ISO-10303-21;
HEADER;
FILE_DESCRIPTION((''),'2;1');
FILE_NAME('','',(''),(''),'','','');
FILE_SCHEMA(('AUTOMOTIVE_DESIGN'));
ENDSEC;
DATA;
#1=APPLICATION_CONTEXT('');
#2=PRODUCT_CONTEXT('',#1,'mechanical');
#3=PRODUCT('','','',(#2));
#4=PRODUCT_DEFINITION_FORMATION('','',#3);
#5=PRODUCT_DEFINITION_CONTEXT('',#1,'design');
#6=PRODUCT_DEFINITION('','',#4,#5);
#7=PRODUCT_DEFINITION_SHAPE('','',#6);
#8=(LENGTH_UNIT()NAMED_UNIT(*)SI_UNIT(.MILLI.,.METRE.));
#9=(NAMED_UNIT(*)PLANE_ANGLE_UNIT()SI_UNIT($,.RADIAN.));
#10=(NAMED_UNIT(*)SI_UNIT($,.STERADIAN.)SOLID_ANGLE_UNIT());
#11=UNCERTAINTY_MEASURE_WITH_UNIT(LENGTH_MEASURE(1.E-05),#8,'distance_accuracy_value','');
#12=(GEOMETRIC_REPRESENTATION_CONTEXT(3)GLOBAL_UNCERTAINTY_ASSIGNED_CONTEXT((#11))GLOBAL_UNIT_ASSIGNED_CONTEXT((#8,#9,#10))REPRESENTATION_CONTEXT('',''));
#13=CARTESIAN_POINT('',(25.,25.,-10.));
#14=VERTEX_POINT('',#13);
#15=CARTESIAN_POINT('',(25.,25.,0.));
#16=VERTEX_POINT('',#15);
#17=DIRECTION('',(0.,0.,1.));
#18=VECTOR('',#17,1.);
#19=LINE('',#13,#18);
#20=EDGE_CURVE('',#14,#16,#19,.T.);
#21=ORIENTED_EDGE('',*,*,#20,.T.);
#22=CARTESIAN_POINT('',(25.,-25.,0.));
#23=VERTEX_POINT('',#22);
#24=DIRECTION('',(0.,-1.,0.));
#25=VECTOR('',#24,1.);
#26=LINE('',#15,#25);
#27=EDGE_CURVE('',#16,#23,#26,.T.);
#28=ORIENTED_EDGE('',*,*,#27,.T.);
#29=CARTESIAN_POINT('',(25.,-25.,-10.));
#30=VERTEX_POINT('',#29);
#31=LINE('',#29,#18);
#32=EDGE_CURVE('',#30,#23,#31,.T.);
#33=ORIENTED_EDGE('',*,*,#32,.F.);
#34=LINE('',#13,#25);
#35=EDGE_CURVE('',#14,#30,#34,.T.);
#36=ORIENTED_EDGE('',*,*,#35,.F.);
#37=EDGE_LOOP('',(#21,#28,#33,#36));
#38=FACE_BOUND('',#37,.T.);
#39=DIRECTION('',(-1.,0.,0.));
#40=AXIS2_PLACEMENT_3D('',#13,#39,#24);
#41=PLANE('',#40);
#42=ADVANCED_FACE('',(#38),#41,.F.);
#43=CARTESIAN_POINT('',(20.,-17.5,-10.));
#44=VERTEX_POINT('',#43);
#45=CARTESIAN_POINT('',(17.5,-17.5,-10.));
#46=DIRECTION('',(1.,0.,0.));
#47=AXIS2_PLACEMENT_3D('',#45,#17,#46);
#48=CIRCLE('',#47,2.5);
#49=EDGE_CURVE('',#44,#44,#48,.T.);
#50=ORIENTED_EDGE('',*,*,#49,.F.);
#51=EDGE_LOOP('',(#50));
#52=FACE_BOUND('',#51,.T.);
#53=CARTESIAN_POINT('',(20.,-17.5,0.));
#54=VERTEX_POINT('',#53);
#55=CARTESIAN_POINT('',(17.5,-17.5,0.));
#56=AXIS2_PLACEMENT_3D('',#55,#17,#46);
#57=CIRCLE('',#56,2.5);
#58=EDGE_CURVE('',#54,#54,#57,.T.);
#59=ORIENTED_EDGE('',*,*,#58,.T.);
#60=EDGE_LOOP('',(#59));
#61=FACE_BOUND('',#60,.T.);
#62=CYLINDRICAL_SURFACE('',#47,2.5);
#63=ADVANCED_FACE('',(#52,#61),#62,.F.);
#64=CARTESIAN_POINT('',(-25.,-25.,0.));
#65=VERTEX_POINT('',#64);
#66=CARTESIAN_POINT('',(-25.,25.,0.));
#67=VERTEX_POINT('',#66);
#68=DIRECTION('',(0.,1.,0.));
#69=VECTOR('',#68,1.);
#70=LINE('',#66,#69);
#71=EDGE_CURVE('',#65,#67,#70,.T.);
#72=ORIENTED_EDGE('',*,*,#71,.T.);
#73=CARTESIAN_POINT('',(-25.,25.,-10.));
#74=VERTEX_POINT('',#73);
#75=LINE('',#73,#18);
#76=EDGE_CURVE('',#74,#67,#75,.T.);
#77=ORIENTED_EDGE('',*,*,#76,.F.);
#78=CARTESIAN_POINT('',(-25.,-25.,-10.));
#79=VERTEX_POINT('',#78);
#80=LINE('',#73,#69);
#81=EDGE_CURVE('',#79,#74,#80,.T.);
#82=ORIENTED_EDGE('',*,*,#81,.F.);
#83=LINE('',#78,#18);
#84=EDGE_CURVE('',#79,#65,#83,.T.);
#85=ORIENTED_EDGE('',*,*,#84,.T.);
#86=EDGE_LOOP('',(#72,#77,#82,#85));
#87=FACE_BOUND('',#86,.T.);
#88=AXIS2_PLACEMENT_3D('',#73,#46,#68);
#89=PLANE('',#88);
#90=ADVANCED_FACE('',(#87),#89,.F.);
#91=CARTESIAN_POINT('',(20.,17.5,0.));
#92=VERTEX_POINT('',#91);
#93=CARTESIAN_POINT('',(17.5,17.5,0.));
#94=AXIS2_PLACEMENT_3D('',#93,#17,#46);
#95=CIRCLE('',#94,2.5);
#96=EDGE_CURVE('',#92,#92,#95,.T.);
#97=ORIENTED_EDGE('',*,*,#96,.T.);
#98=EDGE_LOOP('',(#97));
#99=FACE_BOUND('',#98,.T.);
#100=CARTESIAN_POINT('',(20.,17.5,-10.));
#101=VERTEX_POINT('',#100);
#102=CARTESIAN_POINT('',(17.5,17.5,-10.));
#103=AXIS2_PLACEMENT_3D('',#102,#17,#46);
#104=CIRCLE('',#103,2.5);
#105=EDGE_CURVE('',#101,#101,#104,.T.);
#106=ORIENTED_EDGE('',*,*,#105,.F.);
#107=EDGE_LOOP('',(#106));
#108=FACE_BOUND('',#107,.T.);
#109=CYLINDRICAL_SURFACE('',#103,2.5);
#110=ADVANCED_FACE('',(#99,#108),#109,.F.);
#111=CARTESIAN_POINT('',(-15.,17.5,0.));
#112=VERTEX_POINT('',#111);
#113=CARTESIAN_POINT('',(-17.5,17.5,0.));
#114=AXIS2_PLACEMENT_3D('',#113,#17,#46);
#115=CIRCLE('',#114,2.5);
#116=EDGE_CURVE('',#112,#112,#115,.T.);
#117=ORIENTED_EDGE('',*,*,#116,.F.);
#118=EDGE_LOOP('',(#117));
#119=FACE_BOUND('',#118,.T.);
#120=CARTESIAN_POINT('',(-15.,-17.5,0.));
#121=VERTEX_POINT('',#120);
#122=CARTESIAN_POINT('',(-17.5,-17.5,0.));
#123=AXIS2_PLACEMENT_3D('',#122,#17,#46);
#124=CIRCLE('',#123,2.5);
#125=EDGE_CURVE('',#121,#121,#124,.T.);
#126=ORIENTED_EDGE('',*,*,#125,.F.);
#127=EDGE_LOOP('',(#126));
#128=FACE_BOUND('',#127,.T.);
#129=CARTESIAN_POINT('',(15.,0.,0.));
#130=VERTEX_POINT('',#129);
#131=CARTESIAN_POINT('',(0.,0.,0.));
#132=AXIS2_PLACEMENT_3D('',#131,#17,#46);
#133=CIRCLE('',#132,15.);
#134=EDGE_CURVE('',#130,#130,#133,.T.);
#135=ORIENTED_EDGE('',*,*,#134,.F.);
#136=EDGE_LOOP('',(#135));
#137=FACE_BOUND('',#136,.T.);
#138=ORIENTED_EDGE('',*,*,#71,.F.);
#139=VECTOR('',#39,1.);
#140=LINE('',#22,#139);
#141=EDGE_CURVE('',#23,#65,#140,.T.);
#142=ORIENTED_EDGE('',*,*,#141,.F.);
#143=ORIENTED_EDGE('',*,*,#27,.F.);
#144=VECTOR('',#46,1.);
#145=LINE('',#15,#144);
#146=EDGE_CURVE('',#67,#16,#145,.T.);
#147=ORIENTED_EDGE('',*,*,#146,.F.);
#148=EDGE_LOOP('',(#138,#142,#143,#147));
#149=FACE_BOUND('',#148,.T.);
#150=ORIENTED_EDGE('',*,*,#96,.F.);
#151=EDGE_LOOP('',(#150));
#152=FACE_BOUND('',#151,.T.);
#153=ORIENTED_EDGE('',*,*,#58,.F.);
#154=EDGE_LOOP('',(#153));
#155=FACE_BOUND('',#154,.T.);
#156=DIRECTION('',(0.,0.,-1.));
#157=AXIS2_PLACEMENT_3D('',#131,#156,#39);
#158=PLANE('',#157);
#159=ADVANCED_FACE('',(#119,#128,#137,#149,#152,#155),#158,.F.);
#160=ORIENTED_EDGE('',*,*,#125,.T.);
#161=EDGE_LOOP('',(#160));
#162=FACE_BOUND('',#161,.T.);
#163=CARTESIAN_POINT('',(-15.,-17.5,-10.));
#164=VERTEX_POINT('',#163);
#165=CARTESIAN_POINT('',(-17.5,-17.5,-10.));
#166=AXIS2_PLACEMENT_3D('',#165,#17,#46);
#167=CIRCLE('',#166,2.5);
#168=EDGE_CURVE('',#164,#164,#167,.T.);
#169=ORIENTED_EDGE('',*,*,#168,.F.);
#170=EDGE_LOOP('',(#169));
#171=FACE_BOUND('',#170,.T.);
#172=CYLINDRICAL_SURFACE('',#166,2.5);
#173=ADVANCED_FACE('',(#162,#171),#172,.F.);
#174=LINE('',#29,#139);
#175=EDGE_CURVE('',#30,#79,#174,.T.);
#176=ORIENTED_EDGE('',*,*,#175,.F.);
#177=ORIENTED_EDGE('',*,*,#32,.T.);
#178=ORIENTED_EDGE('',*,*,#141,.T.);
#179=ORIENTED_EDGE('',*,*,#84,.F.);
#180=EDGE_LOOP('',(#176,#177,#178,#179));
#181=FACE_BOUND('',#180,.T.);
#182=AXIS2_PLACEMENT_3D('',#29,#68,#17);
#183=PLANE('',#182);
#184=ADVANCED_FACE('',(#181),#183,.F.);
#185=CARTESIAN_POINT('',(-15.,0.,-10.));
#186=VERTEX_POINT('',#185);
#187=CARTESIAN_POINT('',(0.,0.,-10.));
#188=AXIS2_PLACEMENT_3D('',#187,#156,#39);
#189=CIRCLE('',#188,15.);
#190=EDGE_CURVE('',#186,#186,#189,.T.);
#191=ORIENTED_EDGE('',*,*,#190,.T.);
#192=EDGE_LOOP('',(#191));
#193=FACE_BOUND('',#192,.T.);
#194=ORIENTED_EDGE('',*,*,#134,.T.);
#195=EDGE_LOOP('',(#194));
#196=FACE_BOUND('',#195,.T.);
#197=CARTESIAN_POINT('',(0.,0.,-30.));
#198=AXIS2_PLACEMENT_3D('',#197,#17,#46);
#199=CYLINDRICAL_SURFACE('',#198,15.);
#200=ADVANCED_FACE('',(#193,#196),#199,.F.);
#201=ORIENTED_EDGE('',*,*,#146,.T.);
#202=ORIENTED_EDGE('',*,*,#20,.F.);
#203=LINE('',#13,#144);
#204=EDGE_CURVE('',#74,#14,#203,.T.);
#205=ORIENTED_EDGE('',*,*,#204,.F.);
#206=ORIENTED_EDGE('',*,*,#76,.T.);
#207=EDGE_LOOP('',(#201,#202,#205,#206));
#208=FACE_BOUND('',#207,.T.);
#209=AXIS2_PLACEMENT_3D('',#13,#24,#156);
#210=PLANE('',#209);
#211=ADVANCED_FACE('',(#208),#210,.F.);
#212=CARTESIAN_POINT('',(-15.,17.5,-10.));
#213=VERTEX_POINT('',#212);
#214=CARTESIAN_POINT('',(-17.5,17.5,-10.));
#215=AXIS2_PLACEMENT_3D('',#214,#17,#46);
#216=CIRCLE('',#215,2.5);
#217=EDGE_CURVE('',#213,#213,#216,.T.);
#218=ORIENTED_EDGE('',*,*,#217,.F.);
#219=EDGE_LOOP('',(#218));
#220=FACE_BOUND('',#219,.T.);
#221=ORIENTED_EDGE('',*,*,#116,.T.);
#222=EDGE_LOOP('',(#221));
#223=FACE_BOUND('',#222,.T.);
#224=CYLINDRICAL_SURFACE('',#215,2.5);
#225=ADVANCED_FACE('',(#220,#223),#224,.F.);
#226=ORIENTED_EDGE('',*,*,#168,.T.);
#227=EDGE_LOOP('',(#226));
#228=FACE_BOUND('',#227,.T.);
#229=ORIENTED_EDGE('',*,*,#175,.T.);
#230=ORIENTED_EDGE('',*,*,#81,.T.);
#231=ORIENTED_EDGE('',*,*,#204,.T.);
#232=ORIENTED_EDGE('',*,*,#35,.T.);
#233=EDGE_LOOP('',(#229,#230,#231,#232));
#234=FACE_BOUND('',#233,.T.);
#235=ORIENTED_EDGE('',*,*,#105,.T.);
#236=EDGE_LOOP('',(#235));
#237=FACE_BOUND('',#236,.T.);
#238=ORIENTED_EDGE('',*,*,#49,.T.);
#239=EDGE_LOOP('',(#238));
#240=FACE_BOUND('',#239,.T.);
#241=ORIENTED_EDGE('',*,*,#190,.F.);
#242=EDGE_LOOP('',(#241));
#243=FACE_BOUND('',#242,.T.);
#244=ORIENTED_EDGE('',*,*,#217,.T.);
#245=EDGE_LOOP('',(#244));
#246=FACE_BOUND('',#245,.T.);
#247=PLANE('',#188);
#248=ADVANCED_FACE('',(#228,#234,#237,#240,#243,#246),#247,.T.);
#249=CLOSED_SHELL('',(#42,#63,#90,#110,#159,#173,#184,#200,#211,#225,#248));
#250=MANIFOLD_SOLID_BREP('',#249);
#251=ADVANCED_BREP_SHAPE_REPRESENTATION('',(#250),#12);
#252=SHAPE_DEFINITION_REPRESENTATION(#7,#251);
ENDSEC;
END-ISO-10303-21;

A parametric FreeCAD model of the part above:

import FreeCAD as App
import Part
import Sketcher
from FreeCAD import Vector


def add_polygon(sketch, points):
    """Adds a closed chain of lines whose ends are joined by coincident constraints."""
    first, n = sketch.GeometryCount, len(points)
    for a, b in zip(points, points[1:] + points[:1]):
        sketch.addGeometry(Part.LineSegment(App.Vector(*a, 0), App.Vector(*b, 0)), False)
    for i in range(n):
        sketch.addConstraint(Sketcher.Constraint("Coincident", first + i, 2, first + (i + 1) % n, 1))

doc = App.newDocument("Part")
body = doc.addObject("PartDesign::Body", "Body")

# Sketch on XY plane
sketch1 = doc.addObject("Sketcher::SketchObject", "Sketch")
body.addObject(sketch1)
sketch1.AttachmentSupport = (doc.XY_Plane, [""])
sketch1.MapMode = "FlatFace"
sketch1.addGeometry(Part.Circle(Vector(0, 0, 0), Vector(0, 0, 1), 15), False)
sketch1.addGeometry(Part.Circle(Vector(0, 0, 0), Vector(0, 0, 1), 10), False)
sketch1.addConstraint(Sketcher.Constraint("Coincident", 0, 3, -1, 1))
sketch1.addConstraint(Sketcher.Constraint("Coincident", 1, 3, -1, 1))
sketch1.addConstraint(Sketcher.Constraint("Diameter", 0, 30.0))
sketch1.addConstraint(Sketcher.Constraint("Diameter", 1, 20.0))
pad1 = doc.addObject("PartDesign::Pad", "Pad")
body.addObject(pad1)
pad1.Profile = sketch1
pad1.Length = 30

# Sketch on XY plane
sketch2 = doc.addObject("Sketcher::SketchObject", "Sketch001")
body.addObject(sketch2)
sketch2.AttachmentSupport = (doc.XY_Plane, [""])
sketch2.MapMode = "FlatFace"
add_polygon(sketch2, [(25, 25), (25, -25), (-25, -25), (-25, 25)])  # lines 0-3
sketch2.addConstraint(Sketcher.Constraint("Vertical", 0))
sketch2.addConstraint(Sketcher.Constraint("Horizontal", 1))
sketch2.addConstraint(Sketcher.Constraint("Vertical", 2))
sketch2.addConstraint(Sketcher.Constraint("Horizontal", 3))
sketch2.addConstraint(Sketcher.Constraint("Symmetric", 0, 2, 2, 2, -1, 1))
sketch2.addConstraint(Sketcher.Constraint("Equal", 3, 0))
sketch2.addConstraint(Sketcher.Constraint("DistanceX", 1, 2, 1, 1, 50.0))
pad2 = doc.addObject("PartDesign::Pad", "Pad001")
body.addObject(pad2)
pad2.Profile = sketch2
pad2.Length = 10
pad2.Reversed = True

# Sketch on XY plane
sketch3 = doc.addObject("Sketcher::SketchObject", "Sketch002")
body.addObject(sketch3)
sketch3.AttachmentSupport = (doc.XY_Plane, [""])
sketch3.MapMode = "FlatFace"
sketch3.addGeometry(Part.Circle(Vector(-17.5, 17.5, 0), Vector(0, 0, 1), 2.5), False)
sketch3.addGeometry(Part.Circle(Vector(-17.5, -17.5, 0), Vector(0, 0, 1), 2.5), False)
sketch3.addGeometry(Part.Circle(Vector(17.5, -17.5, 0), Vector(0, 0, 1), 2.5), False)
sketch3.addGeometry(Part.Circle(Vector(17.5, 17.5, 0), Vector(0, 0, 1), 2.5), False)
sketch3.addConstraint(Sketcher.Constraint("Equal", 0, 1))
sketch3.addConstraint(Sketcher.Constraint("Equal", 1, 2))
sketch3.addConstraint(Sketcher.Constraint("Equal", 2, 3))
sketch3.addConstraint(Sketcher.Constraint("Symmetric", 0, 3, 2, 3, -1, 1))
sketch3.addConstraint(Sketcher.Constraint("Symmetric", 1, 3, 3, 3, -1, 1))
sketch3.addConstraint(Sketcher.Constraint("Symmetric", 1, 3, 2, 3, -2))
sketch3.addConstraint(Sketcher.Constraint("Diameter", 0, 5.0))
sketch3.addConstraint(Sketcher.Constraint("DistanceY", 1, 3, 0, 3, 35.0))
sketch3.addConstraint(Sketcher.Constraint("DistanceX", 1, 3, 2, 3, 35.0))
pocket1 = doc.addObject("PartDesign::Pocket", "Pocket")
body.addObject(pocket1)
pocket1.Profile = sketch3
pocket1.Length = 10

# Sketch on XY plane
sketch4 = doc.addObject("Sketcher::SketchObject", "Sketch003")
body.addObject(sketch4)
sketch4.AttachmentSupport = (doc.XY_Plane, [""])
sketch4.MapMode = "FlatFace"
sketch4.addGeometry(Part.Circle(Vector(0, 0, 0), Vector(0, 0, 1), 15), False)
sketch4.addGeometry(Part.Circle(Vector(0, 0, 0), Vector(0, 0, 1), 10), False)
sketch4.addConstraint(Sketcher.Constraint("Coincident", 0, 3, -1, 1))
sketch4.addConstraint(Sketcher.Constraint("Coincident", 1, 3, -1, 1))
sketch4.addConstraint(Sketcher.Constraint("Diameter", 0, 30.0))
sketch4.addConstraint(Sketcher.Constraint("Diameter", 1, 20.0))
pocket2 = doc.addObject("PartDesign::Pocket", "Pocket001")
body.addObject(pocket2)
pocket2.Profile = sketch4
pocket2.Length = 30
pocket2.Reversed = True

# Sketch on XY plane
sketch5 = doc.addObject("Sketcher::SketchObject", "Sketch004")
body.addObject(sketch5)
sketch5.AttachmentSupport = (doc.XY_Plane, [""])
sketch5.MapMode = "FlatFace"
sketch5.addGeometry(Part.Circle(Vector(0, 0, 0), Vector(0, 0, 1), 15), False)
sketch5.addConstraint(Sketcher.Constraint("Coincident", 0, 3, -1, 1))
sketch5.addConstraint(Sketcher.Constraint("Diameter", 0, 30.0))
pocket3 = doc.addObject("PartDesign::Pocket", "Pocket002")
body.addObject(pocket3)
pocket3.Profile = sketch5
pocket3.Length = 30

doc.recompute()
